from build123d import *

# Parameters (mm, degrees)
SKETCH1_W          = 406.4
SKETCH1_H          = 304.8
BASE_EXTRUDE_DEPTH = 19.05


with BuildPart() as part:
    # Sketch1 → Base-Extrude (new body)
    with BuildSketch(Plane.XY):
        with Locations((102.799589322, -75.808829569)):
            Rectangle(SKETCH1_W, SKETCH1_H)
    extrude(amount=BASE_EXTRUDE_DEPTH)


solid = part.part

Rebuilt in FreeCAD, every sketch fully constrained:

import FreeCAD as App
import Part
import Sketcher

V = App.Vector
Q = App.Units.Quantity


def add_polygon(sketch, points):
    """Adds a closed chain of lines whose ends are joined by coincident constraints."""
    first, n = sketch.GeometryCount, len(points)
    for a, b in zip(points, points[1:] + points[:1]):
        sketch.addGeometry(Part.LineSegment(App.Vector(*a, 0), App.Vector(*b, 0)), False)
    for i in range(n):
        sketch.addConstraint(Sketcher.Constraint("Coincident", first + i, 2, first + (i + 1) % n, 1))

doc = App.newDocument("Part")
body = doc.addObject("PartDesign::Body", "Body")

# Sketch on XY plane
sketch1 = body.newObject("Sketcher::SketchObject", "Sketch")
sketch1.AttachmentSupport = (doc.getObject("XY_Plane"), [""])
sketch1.MapMode = "FlatFace"
add_polygon(sketch1, [(-100, 77), (-100, -228), (306, -228), (306, 77)])  # lines 0-3
sketch1.addConstraint(Sketcher.Constraint("Vertical", 0))
sketch1.addConstraint(Sketcher.Constraint("Horizontal", 1))
sketch1.addConstraint(Sketcher.Constraint("Vertical", 2))
sketch1.addConstraint(Sketcher.Constraint("Horizontal", 3))
sketch1.addConstraint(Sketcher.Constraint("DistanceX", 1, 1, 1, 2, Q("16 in")))
sketch1.addConstraint(Sketcher.Constraint("DistanceY", 0, 2, 0, 1, Q("12 in")))
sketch1.addConstraint(Sketcher.Constraint("DistanceX", 0, 2, -1, 1, 100.400411))
sketch1.addConstraint(Sketcher.Constraint("DistanceY", 0, 2, -1, 1, 228.20883))
pad1 = body.newObject("PartDesign::Pad", "Pad")
pad1.Profile = sketch1
pad1.Length = Q("0.75 in")

doc.recompute()
